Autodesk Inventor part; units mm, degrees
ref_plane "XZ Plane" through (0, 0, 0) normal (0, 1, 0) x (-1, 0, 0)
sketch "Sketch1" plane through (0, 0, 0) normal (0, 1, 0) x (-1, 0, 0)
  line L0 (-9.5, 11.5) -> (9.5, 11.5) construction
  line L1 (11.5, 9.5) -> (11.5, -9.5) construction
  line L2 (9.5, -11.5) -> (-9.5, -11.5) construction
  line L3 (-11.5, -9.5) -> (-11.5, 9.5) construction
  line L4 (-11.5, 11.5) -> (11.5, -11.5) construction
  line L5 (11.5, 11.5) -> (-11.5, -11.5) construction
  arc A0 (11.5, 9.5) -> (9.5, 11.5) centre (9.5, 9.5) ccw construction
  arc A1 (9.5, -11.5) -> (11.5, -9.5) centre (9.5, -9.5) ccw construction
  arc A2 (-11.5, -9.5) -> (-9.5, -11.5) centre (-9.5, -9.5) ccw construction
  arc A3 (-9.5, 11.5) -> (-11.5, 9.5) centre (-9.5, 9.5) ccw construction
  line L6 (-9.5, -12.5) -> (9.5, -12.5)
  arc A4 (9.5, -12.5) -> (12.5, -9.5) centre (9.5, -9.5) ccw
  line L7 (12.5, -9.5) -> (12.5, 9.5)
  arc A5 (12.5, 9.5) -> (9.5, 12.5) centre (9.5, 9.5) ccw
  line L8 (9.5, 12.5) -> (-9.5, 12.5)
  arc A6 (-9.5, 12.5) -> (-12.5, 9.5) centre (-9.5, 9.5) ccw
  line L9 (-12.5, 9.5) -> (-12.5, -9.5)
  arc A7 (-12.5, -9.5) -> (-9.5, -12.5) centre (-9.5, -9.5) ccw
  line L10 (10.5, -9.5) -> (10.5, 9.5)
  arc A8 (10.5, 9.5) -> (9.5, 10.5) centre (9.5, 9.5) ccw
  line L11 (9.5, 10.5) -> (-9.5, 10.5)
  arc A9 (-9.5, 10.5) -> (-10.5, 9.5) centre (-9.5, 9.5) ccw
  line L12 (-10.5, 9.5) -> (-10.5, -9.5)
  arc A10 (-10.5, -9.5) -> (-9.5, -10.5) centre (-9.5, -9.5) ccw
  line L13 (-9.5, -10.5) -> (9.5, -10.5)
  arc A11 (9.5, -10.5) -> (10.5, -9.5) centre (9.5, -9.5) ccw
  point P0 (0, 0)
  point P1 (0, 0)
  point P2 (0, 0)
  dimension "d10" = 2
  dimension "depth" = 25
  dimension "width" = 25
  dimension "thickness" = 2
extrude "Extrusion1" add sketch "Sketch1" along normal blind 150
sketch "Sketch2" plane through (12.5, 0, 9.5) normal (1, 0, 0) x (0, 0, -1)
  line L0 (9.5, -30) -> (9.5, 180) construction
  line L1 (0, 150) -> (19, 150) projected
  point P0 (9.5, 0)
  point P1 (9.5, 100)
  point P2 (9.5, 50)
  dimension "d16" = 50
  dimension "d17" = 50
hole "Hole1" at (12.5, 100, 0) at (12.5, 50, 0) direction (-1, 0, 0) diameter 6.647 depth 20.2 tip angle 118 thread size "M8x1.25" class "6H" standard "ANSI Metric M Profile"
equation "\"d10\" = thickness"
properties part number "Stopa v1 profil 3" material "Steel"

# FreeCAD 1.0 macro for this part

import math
import FreeCAD as App
import Part
import Sketcher
Q = App.Units.Quantity

doc = App.newDocument("Part")
params = doc.addObject("Spreadsheet::Sheet", "Params")
for row, (alias, value) in enumerate([
    ("sketch1_radius", "1 mm"),
    ("sketch1_radius2", "3 mm"),
    ("sketch1_width", "19 mm"),
    ("pad1_length", "150 mm"),
    ("hole_diameter", "6.647 mm"),
    ("hole_depth", "20.2 mm"),
], start=1):
    params.set(f"A{row}", alias)
    params.set(f"B{row}", "=" + value)
    params.setAlias(f"B{row}", alias)

body = doc.addObject("PartDesign::Body", "Body")

sketch1 = body.newObject("Sketcher::SketchObject", "Sketch")
sketch1.AttachmentSupport = (doc.getObject("XZ_Plane"), [""])
sketch1.MapMode = "FlatFace"
sketch1.addGeometry([
    Part.ArcOfCircle(Part.Circle(App.Vector(9.5, -9.5, 0), App.Vector(0, 0, 1), 3), math.radians(-90), math.radians(0)),
    Part.LineSegment(App.Vector(9.5, -12.5, 0), App.Vector(-9.5, -12.5, 0)),
    Part.ArcOfCircle(Part.Circle(App.Vector(-9.5, -9.5, 0), App.Vector(0, 0, 1), 3), math.radians(180), math.radians(270)),
    Part.LineSegment(App.Vector(-12.5, -9.5, 0), App.Vector(-12.5, 9.5, 0)),
    Part.ArcOfCircle(Part.Circle(App.Vector(-9.5, 9.5, 0), App.Vector(0, 0, 1), 3), math.radians(90), math.radians(180)),
    Part.LineSegment(App.Vector(-9.5, 12.5, 0), App.Vector(9.5, 12.5, 0)),
    Part.ArcOfCircle(Part.Circle(App.Vector(9.5, 9.5, 0), App.Vector(0, 0, 1), 3), math.radians(0), math.radians(90)),
    Part.LineSegment(App.Vector(12.5, 9.5, 0), App.Vector(12.5, -9.5, 0)),
    Part.LineSegment(App.Vector(-10.5, 9.5, 0), App.Vector(-10.5, -9.5, 0)),
    Part.ArcOfCircle(Part.Circle(App.Vector(-9.5, -9.5, 0), App.Vector(0, 0, 1), 1), math.radians(180), math.radians(270)),
    Part.LineSegment(App.Vector(-9.5, -10.5, 0), App.Vector(9.5, -10.5, 0)),
    Part.ArcOfCircle(Part.Circle(App.Vector(9.5, -9.5, 0), App.Vector(0, 0, 1), 1), math.radians(-90), math.radians(0)),
    Part.LineSegment(App.Vector(10.5, -9.5, 0), App.Vector(10.5, 9.5, 0)),
    Part.ArcOfCircle(Part.Circle(App.Vector(9.5, 9.5, 0), App.Vector(0, 0, 1), 1), math.radians(0), math.radians(90)),
    Part.LineSegment(App.Vector(9.5, 10.5, 0), App.Vector(-9.5, 10.5, 0)),
    Part.ArcOfCircle(Part.Circle(App.Vector(-9.5, 9.5, 0), App.Vector(0, 0, 1), 1), math.radians(90), math.radians(180)),
], False)
sketch1.addConstraint([
    Sketcher.Constraint("Tangent", 0, 1, 1, 1),
    Sketcher.Constraint("Tangent", 1, 2, 2, 2),
    Sketcher.Constraint("Tangent", 2, 1, 3, 1),
    Sketcher.Constraint("Tangent", 3, 2, 4, 2),
    Sketcher.Constraint("Tangent", 4, 1, 5, 1),
    Sketcher.Constraint("Tangent", 5, 2, 6, 2),
    Sketcher.Constraint("Tangent", 6, 1, 7, 1),
    Sketcher.Constraint("Tangent", 7, 2, 0, 2),
    Sketcher.Constraint("Tangent", 8, 2, 9, 1),
    Sketcher.Constraint("Tangent", 9, 2, 10, 1),
    Sketcher.Constraint("Tangent", 10, 2, 11, 1),
    Sketcher.Constraint("Tangent", 11, 2, 12, 1),
    Sketcher.Constraint("Tangent", 12, 2, 13, 1),
    Sketcher.Constraint("Tangent", 13, 2, 14, 1),
    Sketcher.Constraint("Tangent", 14, 2, 15, 1),
    Sketcher.Constraint("Tangent", 15, 2, 8, 1),
    Sketcher.Constraint("Horizontal", 1),
    Sketcher.Constraint("Vertical", 3),
    Sketcher.Constraint("Horizontal", 5),
    Sketcher.Constraint("Vertical", 7),
    Sketcher.Constraint("Vertical", 8),
    Sketcher.Constraint("Horizontal", 10),
    Sketcher.Constraint("Vertical", 12),
    Sketcher.Constraint("Horizontal", 14),
    Sketcher.Constraint("Coincident", 9, 3, 2, 3),
    Sketcher.Constraint("Coincident", 11, 3, 0, 3),
    Sketcher.Constraint("Coincident", 13, 3, 6, 3),
    Sketcher.Constraint("Equal", 0, 2),
    Sketcher.Constraint("Equal", 2, 4),
    Sketcher.Constraint("Equal", 4, 6),
    Sketcher.Constraint("Equal", 13, 15),
    Sketcher.Constraint("Symmetric", 0, 3, 4, 3, -1, 1),
    Sketcher.Constraint("Equal", 14, 3),
    Sketcher.Constraint("Radius", 9, Q("1 mm")),
    Sketcher.Constraint("Radius", 0, Q("3 mm")),
    Sketcher.Constraint("DistanceX", 1, 2, 1, 1, Q("19 mm")),
])
sketch1.setExpression("Constraints[33]", "Params.sketch1_radius")
sketch1.setExpression("Constraints[34]", "Params.sketch1_radius2")
sketch1.setExpression("Constraints[35]", "Params.sketch1_width")
pad1 = body.newObject("PartDesign::Pad", "Pad")
pad1.Profile = sketch1
pad1.setExpression("Length", "Params.pad1_length")
pad1.Reversed = True

sketch2 = body.newObject("Sketcher::SketchObject", "Sketch001")
sketch2.AttachmentSupport = (doc.getObject("YZ_Plane"), [""])
sketch2.MapMode = "FlatFace"
sketch2.AttachmentOffset = App.Placement(App.Vector(0, 0, 12.5), App.Rotation())
sketch2.addGeometry([
    Part.Circle(App.Vector(100, 0, 0), App.Vector(0, 0, 1), 3.3),
    Part.Circle(App.Vector(50, 0, 0), App.Vector(0, 0, 1), 3.3),
], False)
sketch2.addConstraint([
    Sketcher.Constraint("Equal", 0, 1),
    Sketcher.Constraint("PointOnObject", 0, 3, -1),
    Sketcher.Constraint("PointOnObject", 1, 3, -1),
    Sketcher.Constraint("Diameter", 0, Q("6.647 mm")),
    Sketcher.Constraint("DistanceX", -1, 1, 0, 3, Q("100 mm")),
    Sketcher.Constraint("DistanceX", -1, 1, 1, 3, Q("50 mm")),
])
doc.recompute()
hole = body.newObject("PartDesign::Hole", "Hole")
hole.Profile = sketch2
hole.ThreadType = "None"
hole.setExpression("Diameter", "Params.hole_diameter")
hole.DepthType = "Dimension"
hole.setExpression("Depth", "Params.hole_depth")
hole.DrillPoint = "Angled"
hole.DrillPointAngle = 118

doc.recompute()
